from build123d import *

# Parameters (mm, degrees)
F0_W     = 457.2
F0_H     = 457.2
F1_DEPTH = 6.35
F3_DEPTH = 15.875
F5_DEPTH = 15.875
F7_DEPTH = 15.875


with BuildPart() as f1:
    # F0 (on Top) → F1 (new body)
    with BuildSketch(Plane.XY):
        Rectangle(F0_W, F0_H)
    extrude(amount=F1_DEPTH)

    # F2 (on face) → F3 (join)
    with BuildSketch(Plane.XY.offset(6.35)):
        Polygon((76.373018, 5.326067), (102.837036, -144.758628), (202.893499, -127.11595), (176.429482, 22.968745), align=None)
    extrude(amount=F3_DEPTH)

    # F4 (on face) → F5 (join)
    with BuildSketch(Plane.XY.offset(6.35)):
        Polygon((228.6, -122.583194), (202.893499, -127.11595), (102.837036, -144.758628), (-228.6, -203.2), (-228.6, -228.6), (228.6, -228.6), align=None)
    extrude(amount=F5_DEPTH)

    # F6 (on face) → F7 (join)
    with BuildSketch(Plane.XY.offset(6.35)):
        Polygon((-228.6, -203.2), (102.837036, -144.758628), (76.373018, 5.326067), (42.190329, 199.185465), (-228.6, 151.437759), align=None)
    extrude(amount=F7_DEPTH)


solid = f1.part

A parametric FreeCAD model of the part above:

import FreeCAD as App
import Part
import Sketcher
from FreeCAD import Vector
Q = App.Units.Quantity

doc = App.newDocument("Part")
body = doc.addObject("PartDesign::Body", "Body")

# Sketch on XY plane
sketch1 = body.newObject("Sketcher::SketchObject", "Sketch")
sketch1.AttachmentSupport = (doc.getObject("XY_Plane"), [""])
sketch1.MapMode = "FlatFace"
sketch1.addGeometry([
    Part.LineSegment(Vector(-229, 229, 0), Vector(-229, -229, 0)),
    Part.LineSegment(Vector(-229, -229, 0), Vector(229, -229, 0)),
    Part.LineSegment(Vector(229, -229, 0), Vector(229, 229, 0)),
    Part.LineSegment(Vector(229, 229, 0), Vector(-229, 229, 0)),
], False)
sketch1.addConstraint([
    Sketcher.Constraint("Coincident", 0, 2, 1, 1),
    Sketcher.Constraint("Coincident", 1, 2, 2, 1),
    Sketcher.Constraint("Coincident", 2, 2, 3, 1),
    Sketcher.Constraint("Coincident", 3, 2, 0, 1),
    Sketcher.Constraint("Vertical", 0),
    Sketcher.Constraint("Horizontal", 1),
    Sketcher.Constraint("Vertical", 2),
    Sketcher.Constraint("Horizontal", 3),
    Sketcher.Constraint("Symmetric", 0, 2, 2, 2, -1, 1),
    Sketcher.Constraint("Equal", 3, 0),
    Sketcher.Constraint("DistanceX", 1, 1, 1, 2, Q("18 in")),
])
pad1 = body.newObject("PartDesign::Pad", "Pad")
pad1.Profile = sketch1
pad1.Length = Q("0.25 in")

# Sketch on XY plane
sketch2 = body.newObject("Sketcher::SketchObject", "Sketch001")
sketch2.AttachmentSupport = (doc.getObject("XY_Plane"), [""])
sketch2.MapMode = "FlatFace"
sketch2.AttachmentOffset = App.Placement(Vector(0, 0, 0.25 * 25.4), App.Rotation())
sketch2.addGeometry([
    Part.LineSegment(Vector(76, 5, 0), Vector(103, -145, 0)),
    Part.LineSegment(Vector(103, -145, 0), Vector(203, -127, 0)),
    Part.LineSegment(Vector(203, -127, 0), Vector(176, 23, 0)),
    Part.LineSegment(Vector(176, 23, 0), Vector(76, 5, 0)),
], False)
sketch2.addConstraint([
    Sketcher.Constraint("Coincident", 0, 2, 1, 1),
    Sketcher.Constraint("Coincident", 1, 2, 2, 1),
    Sketcher.Constraint("Coincident", 2, 2, 3, 1),
    Sketcher.Constraint("Coincident", 3, 2, 0, 1),
    Sketcher.Constraint("Perpendicular", 0, 1),
    Sketcher.Constraint("Perpendicular", 1, 2),
    Sketcher.Constraint("Perpendicular", 2, 3),
    Sketcher.Constraint("Distance", 0, Q("6 in")),
    Sketcher.Constraint("Distance", 1, Q("4 in")),
    Sketcher.Constraint("Angle", 0, Q("-79.999986 deg")),
    Sketcher.Constraint("DistanceX", -1, 1, 1, 2, 202.893499),
    Sketcher.Constraint("DistanceY", 1, 2, -1, 1, 127.11595),
])
pad2 = body.newObject("PartDesign::Pad", "Pad001")
pad2.Profile = sketch2
pad2.Length = Q("0.625 in")

# Sketch on XY plane
sketch3 = body.newObject("Sketcher::SketchObject", "Sketch002")
sketch3.AttachmentSupport = (doc.getObject("XY_Plane"), [""])
sketch3.MapMode = "FlatFace"
sketch3.AttachmentOffset = App.Placement(Vector(0, 0, 0.25 * 25.4), App.Rotation())
sketch3.addGeometry([
    Part.LineSegment(Vector(229, -123, 0), Vector(203, -127, 0)),  # 0
    Part.LineSegment(Vector(203, -127, 0), Vector(103, -145, 0)),  # 1
    Part.LineSegment(Vector(103, -145, 0), Vector(-229, -203, 0)),  # 2
    Part.LineSegment(Vector(-229, -203, 0), Vector(-229, -229, 0)),  # 3
    Part.LineSegment(Vector(-229, -229, 0), Vector(229, -229, 0)),  # 4
    Part.LineSegment(Vector(229, -229, 0), Vector(229, -123, 0)),  # 5
], False)
sketch3.addConstraint([
    Sketcher.Constraint("Coincident", 0, 2, 1, 1),
    Sketcher.Constraint("Coincident", 1, 2, 2, 1),
    Sketcher.Constraint("Coincident", 2, 2, 3, 1),
    Sketcher.Constraint("Coincident", 3, 2, 4, 1),
    Sketcher.Constraint("Coincident", 4, 2, 5, 1),
    Sketcher.Constraint("Coincident", 5, 2, 0, 1),
    Sketcher.Constraint("Vertical", 3),
    Sketcher.Constraint("Horizontal", 4),
    Sketcher.Constraint("Vertical", 5),
    Sketcher.Constraint("Parallel", 0, 1),
    Sketcher.Constraint("Parallel", 1, 2),
    Sketcher.Constraint("DistanceX", 4, 1, 4, 2, Q("18 in")),
    Sketcher.Constraint("DistanceY", 3, 2, 3, 1, Q("1 in")),
    Sketcher.Constraint("Distance", 1, Q("4 in")),
    Sketcher.Constraint("DistanceX", 2, 2, -1, 1, Q("9 in")),
    Sketcher.Constraint("DistanceY", 2, 2, -1, 1, Q("8 in")),
    Sketcher.Constraint("Angle", 0, Q("-169.999986 deg")),
    Sketcher.Constraint("Distance", 2, Q("13.25 in")),
])
pad3 = body.newObject("PartDesign::Pad", "Pad002")
pad3.Profile = sketch3
pad3.Length = Q("0.625 in")

# Sketch on XY plane
sketch4 = body.newObject("Sketcher::SketchObject", "Sketch003")
sketch4.AttachmentSupport = (doc.getObject("XY_Plane"), [""])
sketch4.MapMode = "FlatFace"
sketch4.AttachmentOffset = App.Placement(Vector(0, 0, 0.25 * 25.4), App.Rotation())
sketch4.addGeometry([
    Part.LineSegment(Vector(-229, -203, 0), Vector(103, -145, 0)),  # 0
    Part.LineSegment(Vector(103, -145, 0), Vector(76, 5, 0)),  # 1
    Part.LineSegment(Vector(76, 5, 0), Vector(42, 199, 0)),  # 2
    Part.LineSegment(Vector(42, 199, 0), Vector(-229, 151, 0)),  # 3
    Part.LineSegment(Vector(-229, 151, 0), Vector(-229, -203, 0)),  # 4
], False)
sketch4.addConstraint([
    Sketcher.Constraint("Coincident", 0, 2, 1, 1),
    Sketcher.Constraint("Coincident", 1, 2, 2, 1),
    Sketcher.Constraint("Coincident", 2, 2, 3, 1),
    Sketcher.Constraint("Coincident", 3, 2, 4, 1),
    Sketcher.Constraint("Coincident", 4, 2, 0, 1),
    Sketcher.Constraint("Vertical", 4),
    Sketcher.Constraint("Perpendicular", 0, 1),
    Sketcher.Constraint("Parallel", 1, 2),
    Sketcher.Constraint("Perpendicular", 2, 3),
    Sketcher.Constraint("Distance", 1, Q("6 in")),
    Sketcher.Constraint("DistanceX", 3, 2, -1, 1, Q("9 in")),
    Sketcher.Constraint("DistanceY", 4, 2, -1, 1, Q("8 in")),
    Sketcher.Constraint("Angle", 0, Q("10.000013 deg")),
    Sketcher.Constraint("Distance", 0, Q("13.25 in")),
    Sketcher.Constraint("Distance", 2, Q("7.75 in")),
])
pad4 = body.newObject("PartDesign::Pad", "Pad003")
pad4.Profile = sketch4
pad4.Length = Q("0.625 in")

doc.recompute()
